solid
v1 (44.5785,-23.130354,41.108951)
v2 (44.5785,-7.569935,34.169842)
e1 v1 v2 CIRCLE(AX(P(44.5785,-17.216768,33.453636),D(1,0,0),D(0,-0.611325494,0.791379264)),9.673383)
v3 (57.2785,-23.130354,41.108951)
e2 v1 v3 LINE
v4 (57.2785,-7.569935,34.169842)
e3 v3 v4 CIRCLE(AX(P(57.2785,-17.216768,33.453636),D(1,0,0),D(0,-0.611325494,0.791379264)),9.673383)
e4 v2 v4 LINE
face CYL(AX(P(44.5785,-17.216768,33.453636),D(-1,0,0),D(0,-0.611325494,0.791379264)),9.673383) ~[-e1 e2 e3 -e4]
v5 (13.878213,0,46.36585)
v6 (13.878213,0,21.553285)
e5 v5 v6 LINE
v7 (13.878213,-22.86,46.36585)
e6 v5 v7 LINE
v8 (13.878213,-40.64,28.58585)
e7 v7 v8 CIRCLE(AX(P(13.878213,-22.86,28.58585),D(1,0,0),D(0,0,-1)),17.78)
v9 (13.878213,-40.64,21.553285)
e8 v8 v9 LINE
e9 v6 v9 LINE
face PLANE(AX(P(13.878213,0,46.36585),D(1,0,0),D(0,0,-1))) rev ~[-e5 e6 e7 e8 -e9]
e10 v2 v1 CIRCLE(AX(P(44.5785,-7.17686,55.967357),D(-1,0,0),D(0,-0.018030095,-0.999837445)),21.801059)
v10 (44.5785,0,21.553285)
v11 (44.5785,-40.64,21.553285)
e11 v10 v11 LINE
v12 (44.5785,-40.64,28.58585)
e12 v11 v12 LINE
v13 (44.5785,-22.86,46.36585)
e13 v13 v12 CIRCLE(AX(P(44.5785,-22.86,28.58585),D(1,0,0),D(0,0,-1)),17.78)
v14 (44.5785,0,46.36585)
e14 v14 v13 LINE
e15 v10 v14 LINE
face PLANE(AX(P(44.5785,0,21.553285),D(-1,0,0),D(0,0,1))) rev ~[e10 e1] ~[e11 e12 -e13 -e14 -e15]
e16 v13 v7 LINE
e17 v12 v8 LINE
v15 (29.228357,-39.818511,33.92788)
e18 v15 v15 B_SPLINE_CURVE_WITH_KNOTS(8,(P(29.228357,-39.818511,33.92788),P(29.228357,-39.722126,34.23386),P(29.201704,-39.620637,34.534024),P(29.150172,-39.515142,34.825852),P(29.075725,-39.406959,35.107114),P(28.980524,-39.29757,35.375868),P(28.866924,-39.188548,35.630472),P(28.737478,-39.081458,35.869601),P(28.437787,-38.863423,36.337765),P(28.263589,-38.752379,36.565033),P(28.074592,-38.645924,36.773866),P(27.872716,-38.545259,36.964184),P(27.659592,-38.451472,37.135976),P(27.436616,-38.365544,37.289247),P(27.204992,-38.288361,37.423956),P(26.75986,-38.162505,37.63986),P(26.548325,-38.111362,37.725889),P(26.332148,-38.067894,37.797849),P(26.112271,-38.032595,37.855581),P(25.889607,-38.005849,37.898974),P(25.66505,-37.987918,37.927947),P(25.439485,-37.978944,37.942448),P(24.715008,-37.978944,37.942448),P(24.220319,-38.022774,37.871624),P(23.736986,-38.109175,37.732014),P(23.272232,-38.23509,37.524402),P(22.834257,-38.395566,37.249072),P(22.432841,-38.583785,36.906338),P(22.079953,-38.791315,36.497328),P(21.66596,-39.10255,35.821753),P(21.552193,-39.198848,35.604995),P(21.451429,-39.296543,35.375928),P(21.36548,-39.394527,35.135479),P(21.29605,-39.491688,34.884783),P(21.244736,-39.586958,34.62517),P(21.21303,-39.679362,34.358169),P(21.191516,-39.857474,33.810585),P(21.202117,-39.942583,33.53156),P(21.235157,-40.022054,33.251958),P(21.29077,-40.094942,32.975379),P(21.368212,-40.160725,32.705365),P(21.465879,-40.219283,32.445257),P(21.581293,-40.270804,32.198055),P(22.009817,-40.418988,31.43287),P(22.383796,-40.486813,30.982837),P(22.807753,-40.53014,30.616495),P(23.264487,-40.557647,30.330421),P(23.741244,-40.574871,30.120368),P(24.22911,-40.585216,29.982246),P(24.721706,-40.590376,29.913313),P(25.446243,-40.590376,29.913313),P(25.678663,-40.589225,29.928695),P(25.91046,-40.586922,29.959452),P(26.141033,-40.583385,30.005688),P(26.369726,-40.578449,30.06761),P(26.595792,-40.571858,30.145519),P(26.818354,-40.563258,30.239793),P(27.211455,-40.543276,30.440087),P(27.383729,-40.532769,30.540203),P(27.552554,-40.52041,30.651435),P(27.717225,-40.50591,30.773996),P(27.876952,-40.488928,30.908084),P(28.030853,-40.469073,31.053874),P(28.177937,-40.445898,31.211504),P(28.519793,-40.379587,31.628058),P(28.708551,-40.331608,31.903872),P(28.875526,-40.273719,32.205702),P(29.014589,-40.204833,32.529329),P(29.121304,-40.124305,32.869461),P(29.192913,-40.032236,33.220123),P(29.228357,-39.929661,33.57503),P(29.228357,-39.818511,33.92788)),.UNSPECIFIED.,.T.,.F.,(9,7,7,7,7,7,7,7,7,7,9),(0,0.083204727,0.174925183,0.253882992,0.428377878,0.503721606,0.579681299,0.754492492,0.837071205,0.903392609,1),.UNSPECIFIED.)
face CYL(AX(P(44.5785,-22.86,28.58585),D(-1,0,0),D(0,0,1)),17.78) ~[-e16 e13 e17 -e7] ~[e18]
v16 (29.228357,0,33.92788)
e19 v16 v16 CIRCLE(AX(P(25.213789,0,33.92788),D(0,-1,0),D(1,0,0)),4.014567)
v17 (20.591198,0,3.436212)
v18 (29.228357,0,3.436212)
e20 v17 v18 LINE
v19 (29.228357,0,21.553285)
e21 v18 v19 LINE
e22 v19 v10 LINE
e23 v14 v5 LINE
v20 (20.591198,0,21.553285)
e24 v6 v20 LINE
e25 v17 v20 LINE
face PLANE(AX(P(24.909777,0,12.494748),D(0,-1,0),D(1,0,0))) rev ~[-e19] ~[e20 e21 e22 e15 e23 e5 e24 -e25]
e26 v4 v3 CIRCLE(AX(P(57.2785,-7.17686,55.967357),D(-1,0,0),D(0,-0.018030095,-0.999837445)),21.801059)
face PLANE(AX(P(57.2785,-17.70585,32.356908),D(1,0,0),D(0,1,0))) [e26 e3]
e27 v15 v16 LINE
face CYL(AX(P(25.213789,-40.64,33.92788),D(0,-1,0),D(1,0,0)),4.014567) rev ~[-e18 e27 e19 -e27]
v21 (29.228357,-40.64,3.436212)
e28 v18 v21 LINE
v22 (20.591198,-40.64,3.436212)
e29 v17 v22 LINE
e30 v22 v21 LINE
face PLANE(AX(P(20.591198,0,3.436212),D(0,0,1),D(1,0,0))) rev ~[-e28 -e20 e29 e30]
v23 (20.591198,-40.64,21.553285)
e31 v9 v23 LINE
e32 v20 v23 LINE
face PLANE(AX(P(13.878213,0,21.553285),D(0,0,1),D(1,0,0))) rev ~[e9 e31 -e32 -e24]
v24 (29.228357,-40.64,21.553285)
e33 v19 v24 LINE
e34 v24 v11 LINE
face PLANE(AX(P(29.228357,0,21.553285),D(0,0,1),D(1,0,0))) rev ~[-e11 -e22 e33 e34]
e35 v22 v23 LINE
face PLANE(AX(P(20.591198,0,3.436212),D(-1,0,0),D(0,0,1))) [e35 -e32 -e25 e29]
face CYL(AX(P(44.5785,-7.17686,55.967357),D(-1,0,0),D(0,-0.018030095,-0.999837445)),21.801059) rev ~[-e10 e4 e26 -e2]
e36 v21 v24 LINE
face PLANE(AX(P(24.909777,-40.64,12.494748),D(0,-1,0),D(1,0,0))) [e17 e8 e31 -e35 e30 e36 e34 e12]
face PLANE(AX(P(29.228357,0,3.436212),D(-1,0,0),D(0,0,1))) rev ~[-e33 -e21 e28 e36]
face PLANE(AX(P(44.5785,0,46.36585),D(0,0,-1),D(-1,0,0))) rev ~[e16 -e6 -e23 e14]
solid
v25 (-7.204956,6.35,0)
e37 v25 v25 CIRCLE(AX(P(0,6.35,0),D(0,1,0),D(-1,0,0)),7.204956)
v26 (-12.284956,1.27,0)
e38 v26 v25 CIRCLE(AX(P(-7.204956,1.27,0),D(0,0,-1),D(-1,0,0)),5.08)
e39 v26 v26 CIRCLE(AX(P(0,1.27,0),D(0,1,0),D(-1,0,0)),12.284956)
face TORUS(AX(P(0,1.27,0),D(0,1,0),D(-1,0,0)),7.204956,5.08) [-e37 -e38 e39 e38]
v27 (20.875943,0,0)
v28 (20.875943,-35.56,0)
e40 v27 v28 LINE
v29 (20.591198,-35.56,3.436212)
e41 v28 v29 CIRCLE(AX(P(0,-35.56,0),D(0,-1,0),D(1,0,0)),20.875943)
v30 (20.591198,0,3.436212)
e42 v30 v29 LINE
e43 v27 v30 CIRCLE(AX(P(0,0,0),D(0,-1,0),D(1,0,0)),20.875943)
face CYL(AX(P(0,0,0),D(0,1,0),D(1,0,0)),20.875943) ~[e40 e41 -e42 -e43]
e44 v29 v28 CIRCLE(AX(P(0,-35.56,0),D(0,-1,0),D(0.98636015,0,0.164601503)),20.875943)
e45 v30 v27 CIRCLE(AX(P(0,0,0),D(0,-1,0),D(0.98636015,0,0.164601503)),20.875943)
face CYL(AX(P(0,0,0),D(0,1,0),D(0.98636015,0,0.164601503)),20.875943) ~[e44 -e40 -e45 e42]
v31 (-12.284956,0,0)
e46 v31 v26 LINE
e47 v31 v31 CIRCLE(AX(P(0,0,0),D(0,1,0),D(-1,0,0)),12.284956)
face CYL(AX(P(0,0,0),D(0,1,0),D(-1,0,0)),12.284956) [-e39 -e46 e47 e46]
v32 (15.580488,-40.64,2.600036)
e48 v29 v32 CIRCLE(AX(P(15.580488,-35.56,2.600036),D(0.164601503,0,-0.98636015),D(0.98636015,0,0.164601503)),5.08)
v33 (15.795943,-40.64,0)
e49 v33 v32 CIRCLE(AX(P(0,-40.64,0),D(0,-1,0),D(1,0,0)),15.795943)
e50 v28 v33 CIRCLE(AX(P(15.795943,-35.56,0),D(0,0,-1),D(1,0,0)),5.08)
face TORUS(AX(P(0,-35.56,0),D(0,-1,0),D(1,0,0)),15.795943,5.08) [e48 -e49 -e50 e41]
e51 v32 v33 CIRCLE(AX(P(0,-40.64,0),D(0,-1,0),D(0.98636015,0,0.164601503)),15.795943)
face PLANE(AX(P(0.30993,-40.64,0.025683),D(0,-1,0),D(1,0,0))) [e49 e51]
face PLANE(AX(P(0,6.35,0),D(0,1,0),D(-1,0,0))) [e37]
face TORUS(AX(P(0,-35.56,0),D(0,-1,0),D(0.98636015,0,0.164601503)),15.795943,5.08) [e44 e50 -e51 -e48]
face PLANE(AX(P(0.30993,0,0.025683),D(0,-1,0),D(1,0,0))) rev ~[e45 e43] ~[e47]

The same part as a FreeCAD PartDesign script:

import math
import FreeCAD as App
import Part
import Sketcher

V = App.Vector
Q = App.Units.Quantity


def edges_at(feature, points):
    """Names of the edges that pass closest to the given points."""
    edges = feature.Shape.Edges
    near = lambda p: min(range(len(edges)), key=lambda i: edges[i].distToShape(Part.Vertex(*p))[0])
    return sorted({f"Edge{near(p) + 1}" for p in points})


def add_polygon(sketch, points):
    """Adds a closed chain of lines whose ends are joined by coincident constraints."""
    first, n = sketch.GeometryCount, len(points)
    for a, b in zip(points, points[1:] + points[:1]):
        sketch.addGeometry(Part.LineSegment(App.Vector(*a, 0), App.Vector(*b, 0)), False)
    for i in range(n):
        sketch.addConstraint(Sketcher.Constraint("Coincident", first + i, 2, first + (i + 1) % n, 1))

doc = App.newDocument("Part")
body = doc.addObject("PartDesign::Body", "Body")

sketch1 = doc.addObject("Sketcher::SketchObject", "Sketch")
body.addObject(sketch1)
sketch1.AttachmentSupport = (doc.XZ_Plane, [""])
sketch1.MapMode = "FlatFace"
sketch1.addGeometry(Part.ArcOfCircle(Part.Circle(V(0, 0, 0), V(0, 0, 1), 20.9), math.radians(9), math.radians(360)), False)
sketch1.addGeometry(Part.ArcOfCircle(Part.Circle(V(0, 0, 0), V(0, 0, 1), 20.9), math.radians(0), math.radians(9.47)), False)
sketch1.addConstraint(Sketcher.Constraint("Tangent", 0, 1, 1, 2))
sketch1.addConstraint(Sketcher.Constraint("Coincident", 1, 1, 0, 2))
sketch1.addConstraint(Sketcher.Constraint("Coincident", 0, 3, -1, 1))
sketch1.addConstraint(Sketcher.Constraint("PointOnObject", 1, 1, -1))
sketch1.addConstraint(Sketcher.Constraint("Radius", 0, 20.875943))
sketch1.addConstraint(Sketcher.Constraint("DistanceY", -1, 1, 0, 1, 3.436212))
pad1 = doc.addObject("PartDesign::Pad", "Pad")
body.addObject(pad1)
pad1.Profile = sketch1
pad1.Length = Q("1.6 in")
doc.recompute()

fillet = doc.addObject("PartDesign::Fillet", "Fillet")
body.addObject(fillet)
fillet.Base = (pad1, edges_at(pad1, [(-20.805, -40.64, -1.724)]))
fillet.Radius = Q("0.2 in")

sketch2 = doc.addObject("Sketcher::SketchObject", "Sketch001")
body.addObject(sketch2)
sketch2.AttachmentSupport = (doc.XZ_Plane, [""])
sketch2.MapMode = "FlatFace"
sketch2.addGeometry(Part.Circle(V(0, 0, 0), V(0, 0, 1), 12), False)
sketch2.addConstraint(Sketcher.Constraint("Coincident", 0, 3, -1, 1))
sketch2.addConstraint(Sketcher.Constraint("Diameter", 0, 24.569913))
pad2 = doc.addObject("PartDesign::Pad", "Pad001")
body.addObject(pad2)
pad2.Profile = sketch2
pad2.Length = Q("0.5 in")
pad2.Midplane = True
doc.recompute()

fillet2 = doc.addObject("PartDesign::Fillet", "Fillet001")
body.addObject(fillet2)
fillet2.Base = (pad2, edges_at(pad2, [(12.285, 6.35, 0)]))
fillet2.Radius = Q("0.2 in")
body2 = doc.addObject("PartDesign::Body", "Body001")

sketch3 = doc.addObject("Sketcher::SketchObject", "Sketch002")
body2.addObject(sketch3)
sketch3.AttachmentSupport = (doc.getObject("XZ_Plane001"), [""])
sketch3.MapMode = "FlatFace"
add_polygon(sketch3, [(21, 22), (21, 3), (29, 3), (29, 22), (45, 22), (45, 46), (14, 46), (14, 22)])
sketch3.addConstraint(Sketcher.Constraint("Vertical", 0))
sketch3.addConstraint(Sketcher.Constraint("Horizontal", 1))
sketch3.addConstraint(Sketcher.Constraint("Vertical", 2))
sketch3.addConstraint(Sketcher.Constraint("Horizontal", 3))
sketch3.addConstraint(Sketcher.Constraint("Vertical", 4))
sketch3.addConstraint(Sketcher.Constraint("Horizontal", 5))
sketch3.addConstraint(Sketcher.Constraint("Vertical", 6))
sketch3.addConstraint(Sketcher.Constraint("Horizontal", 7))
sketch3.addConstraint(Sketcher.Constraint("Horizontal", 3, 2, 6, 2))
sketch3.addConstraint(Sketcher.Constraint("DistanceX", 1, 1, 1, 2, 8.637159))
sketch3.addConstraint(Sketcher.Constraint("DistanceX", -1, 1, 3, 2, 44.5785))
sketch3.addConstraint(Sketcher.Constraint("DistanceX", 3, 1, 3, 2, 15.350143))
sketch3.addConstraint(Sketcher.Constraint("DistanceX", 5, 2, 5, 1, 30.700287))
sketch3.addConstraint(Sketcher.Constraint("DistanceY", 0, 2, 0, 1, 18.117074))
sketch3.addConstraint(Sketcher.Constraint("DistanceY", 4, 1, 4, 2, 24.812564))
sketch3.addConstraint(Sketcher.Constraint("DistanceY", -1, 1, 0, 2, 3.436212))
pad3 = doc.addObject("PartDesign::Pad", "Pad002")
body2.addObject(pad3)
pad3.Profile = sketch3
pad3.Length = Q("1.6 in")
doc.recompute()

fillet3 = doc.addObject("PartDesign::Fillet", "Fillet002")
body2.addObject(fillet3)
fillet3.Base = (pad3, edges_at(pad3, [(29.228, -40.64, 46.366)]))
fillet3.Radius = Q("0.7 in")

sketch4 = doc.addObject("Sketcher::SketchObject", "Sketch003")
body2.addObject(sketch4)
sketch4.AttachmentSupport = (doc.getObject("YZ_Plane001"), [""])
sketch4.MapMode = "FlatFace"
sketch4.AttachmentOffset = App.Placement(V(0, 0, 44.5785), App.Rotation())
sketch4.addGeometry(Part.ArcOfCircle(Part.Circle(V(-7, 56, 0), V(0, 0, 1), 22), math.radians(-137), math.radians(-91)), False)
sketch4.addGeometry(Part.ArcOfCircle(Part.Circle(V(-17, 33, 0), V(0, 0, 1), 10), math.radians(128), math.radians(364)), False)
sketch4.addConstraint(Sketcher.Constraint("Coincident", 0, 1, 1, 1))
sketch4.addConstraint(Sketcher.Constraint("Coincident", 1, 2, 0, 2))
sketch4.addConstraint(Sketcher.Constraint("Radius", 0, 21.801059))
sketch4.addConstraint(Sketcher.Constraint("Radius", 1, 9.673383))
sketch4.addConstraint(Sketcher.Constraint("DistanceX", 0, 3, -1, 1, 7.17686))
sketch4.addConstraint(Sketcher.Constraint("DistanceX", 1, 3, -1, 1, 17.216768))
sketch4.addConstraint(Sketcher.Constraint("DistanceY", -1, 1, 0, 1, 41.108951))
sketch4.addConstraint(Sketcher.Constraint("DistanceY", -1, 1, 1, 2, 34.169842))
pad4 = doc.addObject("PartDesign::Pad", "Pad003")
body2.addObject(pad4)
pad4.Profile = sketch4
pad4.Length = Q("0.5 in")

sketch5 = doc.addObject("Sketcher::SketchObject", "Sketch004")
body2.addObject(sketch5)
sketch5.AttachmentSupport = (doc.getObject("XZ_Plane001"), [""])
sketch5.MapMode = "FlatFace"
sketch5.AttachmentOffset = App.Placement(V(0, 0, 1.6 * 25.4), App.Rotation())
sketch5.addGeometry(Part.Circle(V(25.2, 33.9, 0), V(0, 0, 1), 4), False)
sketch5.addConstraint(Sketcher.Constraint("Diameter", 0, 8.029135))
sketch5.addConstraint(Sketcher.Constraint("DistanceX", -1, 1, 0, 3, 25.213789))
sketch5.addConstraint(Sketcher.Constraint("DistanceY", -1, 1, 0, 3, 33.92788))
pocket1 = doc.addObject("PartDesign::Pocket", "Pocket")
body2.addObject(pocket1)
pocket1.Profile = sketch5
pocket1.Type = "ThroughAll"

doc.recompute()
